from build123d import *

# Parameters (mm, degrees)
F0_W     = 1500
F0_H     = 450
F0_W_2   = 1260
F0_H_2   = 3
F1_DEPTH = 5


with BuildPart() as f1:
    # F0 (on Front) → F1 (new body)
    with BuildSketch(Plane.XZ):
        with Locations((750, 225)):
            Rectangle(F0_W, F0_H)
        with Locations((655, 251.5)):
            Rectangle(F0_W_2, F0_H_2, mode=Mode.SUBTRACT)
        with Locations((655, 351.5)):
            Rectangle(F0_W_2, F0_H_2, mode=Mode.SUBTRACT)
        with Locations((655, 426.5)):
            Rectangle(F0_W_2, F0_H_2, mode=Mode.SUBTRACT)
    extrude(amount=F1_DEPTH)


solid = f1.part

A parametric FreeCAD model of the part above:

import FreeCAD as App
import Part
import Sketcher
from FreeCAD import Vector

doc = App.newDocument("Part")
params = doc.addObject("Spreadsheet::Sheet", "Params")
for row, (alias, value) in enumerate([
    ("sketch1_width", "1500 mm"),
    ("sketch1_width2", "1260 mm"),
    ("sketch1_height", "450 mm"),
    ("sketch1_height2", "3 mm"),
    ("pad1_length", "5 mm"),
], start=1):
    params.set(f"A{row}", alias)
    params.set(f"B{row}", "=" + value)
    params.setAlias(f"B{row}", alias)

body = doc.addObject("PartDesign::Body", "Body")

sketch1 = doc.addObject("Sketcher::SketchObject", "Sketch")
body.addObject(sketch1)
sketch1.AttachmentSupport = (doc.XZ_Plane, [""])
sketch1.MapMode = "FlatFace"
sketch1.addGeometry(Part.LineSegment(Vector(0, 450, 0), Vector(0, 0, 0)), False)
sketch1.addGeometry(Part.LineSegment(Vector(0, 0, 0), Vector(1500, 0, 0)), False)
sketch1.addGeometry(Part.LineSegment(Vector(1500, 0, 0), Vector(1500, 450, 0)), False)
sketch1.addGeometry(Part.LineSegment(Vector(1500, 450, 0), Vector(0, 450, 0)), False)
sketch1.addGeometry(Part.LineSegment(Vector(1285, 250, 0), Vector(25, 250, 0)), False)
sketch1.addGeometry(Part.LineSegment(Vector(25, 250, 0), Vector(25, 253, 0)), False)
sketch1.addGeometry(Part.LineSegment(Vector(25, 253, 0), Vector(1285, 253, 0)), False)
sketch1.addGeometry(Part.LineSegment(Vector(1285, 253, 0), Vector(1285, 250, 0)), False)
sketch1.addGeometry(Part.LineSegment(Vector(1285, 350, 0), Vector(25, 350, 0)), False)
sketch1.addGeometry(Part.LineSegment(Vector(25, 350, 0), Vector(25, 353, 0)), False)
sketch1.addGeometry(Part.LineSegment(Vector(25, 353, 0), Vector(1285, 353, 0)), False)
sketch1.addGeometry(Part.LineSegment(Vector(1285, 353, 0), Vector(1285, 350, 0)), False)
sketch1.addGeometry(Part.LineSegment(Vector(1285, 425, 0), Vector(25, 425, 0)), False)
sketch1.addGeometry(Part.LineSegment(Vector(25, 425, 0), Vector(25, 428, 0)), False)
sketch1.addGeometry(Part.LineSegment(Vector(25, 428, 0), Vector(1285, 428, 0)), False)
sketch1.addGeometry(Part.LineSegment(Vector(1285, 428, 0), Vector(1285, 425, 0)), False)
sketch1.addConstraint(Sketcher.Constraint("Coincident", 0, 2, 1, 1))
sketch1.addConstraint(Sketcher.Constraint("Coincident", 1, 2, 2, 1))
sketch1.addConstraint(Sketcher.Constraint("Coincident", 2, 2, 3, 1))
sketch1.addConstraint(Sketcher.Constraint("Coincident", 3, 2, 0, 1))
sketch1.addConstraint(Sketcher.Constraint("Coincident", 4, 2, 5, 1))
sketch1.addConstraint(Sketcher.Constraint("Coincident", 5, 2, 6, 1))
sketch1.addConstraint(Sketcher.Constraint("Coincident", 6, 2, 7, 1))
sketch1.addConstraint(Sketcher.Constraint("Coincident", 7, 2, 4, 1))
sketch1.addConstraint(Sketcher.Constraint("Coincident", 8, 2, 9, 1))
sketch1.addConstraint(Sketcher.Constraint("Coincident", 9, 2, 10, 1))
sketch1.addConstraint(Sketcher.Constraint("Coincident", 10, 2, 11, 1))
sketch1.addConstraint(Sketcher.Constraint("Coincident", 11, 2, 8, 1))
sketch1.addConstraint(Sketcher.Constraint("Coincident", 12, 2, 13, 1))
sketch1.addConstraint(Sketcher.Constraint("Coincident", 13, 2, 14, 1))
sketch1.addConstraint(Sketcher.Constraint("Coincident", 14, 2, 15, 1))
sketch1.addConstraint(Sketcher.Constraint("Coincident", 15, 2, 12, 1))
sketch1.addConstraint(Sketcher.Constraint("Vertical", 0))
sketch1.addConstraint(Sketcher.Constraint("Horizontal", 1))
sketch1.addConstraint(Sketcher.Constraint("Vertical", 2))
sketch1.addConstraint(Sketcher.Constraint("Horizontal", 3))
sketch1.addConstraint(Sketcher.Constraint("Horizontal", 4))
sketch1.addConstraint(Sketcher.Constraint("Vertical", 5))
sketch1.addConstraint(Sketcher.Constraint("Horizontal", 6))
sketch1.addConstraint(Sketcher.Constraint("Vertical", 7))
sketch1.addConstraint(Sketcher.Constraint("Horizontal", 8))
sketch1.addConstraint(Sketcher.Constraint("Vertical", 9))
sketch1.addConstraint(Sketcher.Constraint("Horizontal", 10))
sketch1.addConstraint(Sketcher.Constraint("Vertical", 11))
sketch1.addConstraint(Sketcher.Constraint("Horizontal", 12))
sketch1.addConstraint(Sketcher.Constraint("Vertical", 13))
sketch1.addConstraint(Sketcher.Constraint("Horizontal", 14))
sketch1.addConstraint(Sketcher.Constraint("Vertical", 15))
sketch1.addConstraint(Sketcher.Constraint("Coincident", 0, 2, -1, 1))
sketch1.addConstraint(Sketcher.Constraint("Vertical", 5, 2, 8, 2))
sketch1.addConstraint(Sketcher.Constraint("Vertical", 7, 2, 10, 2))
sketch1.addConstraint(Sketcher.Constraint("Vertical", 9, 2, 12, 2))
sketch1.addConstraint(Sketcher.Constraint("Vertical", 11, 2, 14, 2))
sketch1.addConstraint(Sketcher.Constraint("Equal", 7, 9))
sketch1.addConstraint(Sketcher.Constraint("Equal", 11, 13))
sketch1.addConstraint(Sketcher.Constraint("DistanceX", 1, 1, 1, 2, 1500.0))
sketch1.addConstraint(Sketcher.Constraint("DistanceX", 4, 2, 4, 1, 1260.0))
sketch1.addConstraint(Sketcher.Constraint("DistanceY", 0, 2, 0, 1, 450.0))
sketch1.addConstraint(Sketcher.Constraint("DistanceY", 5, 1, 5, 2, 3.0))
sketch1.addConstraint(Sketcher.Constraint("DistanceX", -1, 1, 4, 2, 25.0))
sketch1.addConstraint(Sketcher.Constraint("DistanceY", -1, 1, 4, 2, 250.0))
sketch1.addConstraint(Sketcher.Constraint("DistanceY", -1, 1, 8, 2, 350.0))
sketch1.addConstraint(Sketcher.Constraint("DistanceY", -1, 1, 12, 2, 425.0))
sketch1.setExpression("Constraints[39]", "Params.sketch1_width")
sketch1.setExpression("Constraints[40]", "Params.sketch1_width2")
sketch1.setExpression("Constraints[41]", "Params.sketch1_height")
sketch1.setExpression("Constraints[42]", "Params.sketch1_height2")
pad1 = doc.addObject("PartDesign::Pad", "Pad")
body.addObject(pad1)
pad1.Profile = sketch1
pad1.setExpression("Length", "Params.pad1_length")

doc.recompute()
